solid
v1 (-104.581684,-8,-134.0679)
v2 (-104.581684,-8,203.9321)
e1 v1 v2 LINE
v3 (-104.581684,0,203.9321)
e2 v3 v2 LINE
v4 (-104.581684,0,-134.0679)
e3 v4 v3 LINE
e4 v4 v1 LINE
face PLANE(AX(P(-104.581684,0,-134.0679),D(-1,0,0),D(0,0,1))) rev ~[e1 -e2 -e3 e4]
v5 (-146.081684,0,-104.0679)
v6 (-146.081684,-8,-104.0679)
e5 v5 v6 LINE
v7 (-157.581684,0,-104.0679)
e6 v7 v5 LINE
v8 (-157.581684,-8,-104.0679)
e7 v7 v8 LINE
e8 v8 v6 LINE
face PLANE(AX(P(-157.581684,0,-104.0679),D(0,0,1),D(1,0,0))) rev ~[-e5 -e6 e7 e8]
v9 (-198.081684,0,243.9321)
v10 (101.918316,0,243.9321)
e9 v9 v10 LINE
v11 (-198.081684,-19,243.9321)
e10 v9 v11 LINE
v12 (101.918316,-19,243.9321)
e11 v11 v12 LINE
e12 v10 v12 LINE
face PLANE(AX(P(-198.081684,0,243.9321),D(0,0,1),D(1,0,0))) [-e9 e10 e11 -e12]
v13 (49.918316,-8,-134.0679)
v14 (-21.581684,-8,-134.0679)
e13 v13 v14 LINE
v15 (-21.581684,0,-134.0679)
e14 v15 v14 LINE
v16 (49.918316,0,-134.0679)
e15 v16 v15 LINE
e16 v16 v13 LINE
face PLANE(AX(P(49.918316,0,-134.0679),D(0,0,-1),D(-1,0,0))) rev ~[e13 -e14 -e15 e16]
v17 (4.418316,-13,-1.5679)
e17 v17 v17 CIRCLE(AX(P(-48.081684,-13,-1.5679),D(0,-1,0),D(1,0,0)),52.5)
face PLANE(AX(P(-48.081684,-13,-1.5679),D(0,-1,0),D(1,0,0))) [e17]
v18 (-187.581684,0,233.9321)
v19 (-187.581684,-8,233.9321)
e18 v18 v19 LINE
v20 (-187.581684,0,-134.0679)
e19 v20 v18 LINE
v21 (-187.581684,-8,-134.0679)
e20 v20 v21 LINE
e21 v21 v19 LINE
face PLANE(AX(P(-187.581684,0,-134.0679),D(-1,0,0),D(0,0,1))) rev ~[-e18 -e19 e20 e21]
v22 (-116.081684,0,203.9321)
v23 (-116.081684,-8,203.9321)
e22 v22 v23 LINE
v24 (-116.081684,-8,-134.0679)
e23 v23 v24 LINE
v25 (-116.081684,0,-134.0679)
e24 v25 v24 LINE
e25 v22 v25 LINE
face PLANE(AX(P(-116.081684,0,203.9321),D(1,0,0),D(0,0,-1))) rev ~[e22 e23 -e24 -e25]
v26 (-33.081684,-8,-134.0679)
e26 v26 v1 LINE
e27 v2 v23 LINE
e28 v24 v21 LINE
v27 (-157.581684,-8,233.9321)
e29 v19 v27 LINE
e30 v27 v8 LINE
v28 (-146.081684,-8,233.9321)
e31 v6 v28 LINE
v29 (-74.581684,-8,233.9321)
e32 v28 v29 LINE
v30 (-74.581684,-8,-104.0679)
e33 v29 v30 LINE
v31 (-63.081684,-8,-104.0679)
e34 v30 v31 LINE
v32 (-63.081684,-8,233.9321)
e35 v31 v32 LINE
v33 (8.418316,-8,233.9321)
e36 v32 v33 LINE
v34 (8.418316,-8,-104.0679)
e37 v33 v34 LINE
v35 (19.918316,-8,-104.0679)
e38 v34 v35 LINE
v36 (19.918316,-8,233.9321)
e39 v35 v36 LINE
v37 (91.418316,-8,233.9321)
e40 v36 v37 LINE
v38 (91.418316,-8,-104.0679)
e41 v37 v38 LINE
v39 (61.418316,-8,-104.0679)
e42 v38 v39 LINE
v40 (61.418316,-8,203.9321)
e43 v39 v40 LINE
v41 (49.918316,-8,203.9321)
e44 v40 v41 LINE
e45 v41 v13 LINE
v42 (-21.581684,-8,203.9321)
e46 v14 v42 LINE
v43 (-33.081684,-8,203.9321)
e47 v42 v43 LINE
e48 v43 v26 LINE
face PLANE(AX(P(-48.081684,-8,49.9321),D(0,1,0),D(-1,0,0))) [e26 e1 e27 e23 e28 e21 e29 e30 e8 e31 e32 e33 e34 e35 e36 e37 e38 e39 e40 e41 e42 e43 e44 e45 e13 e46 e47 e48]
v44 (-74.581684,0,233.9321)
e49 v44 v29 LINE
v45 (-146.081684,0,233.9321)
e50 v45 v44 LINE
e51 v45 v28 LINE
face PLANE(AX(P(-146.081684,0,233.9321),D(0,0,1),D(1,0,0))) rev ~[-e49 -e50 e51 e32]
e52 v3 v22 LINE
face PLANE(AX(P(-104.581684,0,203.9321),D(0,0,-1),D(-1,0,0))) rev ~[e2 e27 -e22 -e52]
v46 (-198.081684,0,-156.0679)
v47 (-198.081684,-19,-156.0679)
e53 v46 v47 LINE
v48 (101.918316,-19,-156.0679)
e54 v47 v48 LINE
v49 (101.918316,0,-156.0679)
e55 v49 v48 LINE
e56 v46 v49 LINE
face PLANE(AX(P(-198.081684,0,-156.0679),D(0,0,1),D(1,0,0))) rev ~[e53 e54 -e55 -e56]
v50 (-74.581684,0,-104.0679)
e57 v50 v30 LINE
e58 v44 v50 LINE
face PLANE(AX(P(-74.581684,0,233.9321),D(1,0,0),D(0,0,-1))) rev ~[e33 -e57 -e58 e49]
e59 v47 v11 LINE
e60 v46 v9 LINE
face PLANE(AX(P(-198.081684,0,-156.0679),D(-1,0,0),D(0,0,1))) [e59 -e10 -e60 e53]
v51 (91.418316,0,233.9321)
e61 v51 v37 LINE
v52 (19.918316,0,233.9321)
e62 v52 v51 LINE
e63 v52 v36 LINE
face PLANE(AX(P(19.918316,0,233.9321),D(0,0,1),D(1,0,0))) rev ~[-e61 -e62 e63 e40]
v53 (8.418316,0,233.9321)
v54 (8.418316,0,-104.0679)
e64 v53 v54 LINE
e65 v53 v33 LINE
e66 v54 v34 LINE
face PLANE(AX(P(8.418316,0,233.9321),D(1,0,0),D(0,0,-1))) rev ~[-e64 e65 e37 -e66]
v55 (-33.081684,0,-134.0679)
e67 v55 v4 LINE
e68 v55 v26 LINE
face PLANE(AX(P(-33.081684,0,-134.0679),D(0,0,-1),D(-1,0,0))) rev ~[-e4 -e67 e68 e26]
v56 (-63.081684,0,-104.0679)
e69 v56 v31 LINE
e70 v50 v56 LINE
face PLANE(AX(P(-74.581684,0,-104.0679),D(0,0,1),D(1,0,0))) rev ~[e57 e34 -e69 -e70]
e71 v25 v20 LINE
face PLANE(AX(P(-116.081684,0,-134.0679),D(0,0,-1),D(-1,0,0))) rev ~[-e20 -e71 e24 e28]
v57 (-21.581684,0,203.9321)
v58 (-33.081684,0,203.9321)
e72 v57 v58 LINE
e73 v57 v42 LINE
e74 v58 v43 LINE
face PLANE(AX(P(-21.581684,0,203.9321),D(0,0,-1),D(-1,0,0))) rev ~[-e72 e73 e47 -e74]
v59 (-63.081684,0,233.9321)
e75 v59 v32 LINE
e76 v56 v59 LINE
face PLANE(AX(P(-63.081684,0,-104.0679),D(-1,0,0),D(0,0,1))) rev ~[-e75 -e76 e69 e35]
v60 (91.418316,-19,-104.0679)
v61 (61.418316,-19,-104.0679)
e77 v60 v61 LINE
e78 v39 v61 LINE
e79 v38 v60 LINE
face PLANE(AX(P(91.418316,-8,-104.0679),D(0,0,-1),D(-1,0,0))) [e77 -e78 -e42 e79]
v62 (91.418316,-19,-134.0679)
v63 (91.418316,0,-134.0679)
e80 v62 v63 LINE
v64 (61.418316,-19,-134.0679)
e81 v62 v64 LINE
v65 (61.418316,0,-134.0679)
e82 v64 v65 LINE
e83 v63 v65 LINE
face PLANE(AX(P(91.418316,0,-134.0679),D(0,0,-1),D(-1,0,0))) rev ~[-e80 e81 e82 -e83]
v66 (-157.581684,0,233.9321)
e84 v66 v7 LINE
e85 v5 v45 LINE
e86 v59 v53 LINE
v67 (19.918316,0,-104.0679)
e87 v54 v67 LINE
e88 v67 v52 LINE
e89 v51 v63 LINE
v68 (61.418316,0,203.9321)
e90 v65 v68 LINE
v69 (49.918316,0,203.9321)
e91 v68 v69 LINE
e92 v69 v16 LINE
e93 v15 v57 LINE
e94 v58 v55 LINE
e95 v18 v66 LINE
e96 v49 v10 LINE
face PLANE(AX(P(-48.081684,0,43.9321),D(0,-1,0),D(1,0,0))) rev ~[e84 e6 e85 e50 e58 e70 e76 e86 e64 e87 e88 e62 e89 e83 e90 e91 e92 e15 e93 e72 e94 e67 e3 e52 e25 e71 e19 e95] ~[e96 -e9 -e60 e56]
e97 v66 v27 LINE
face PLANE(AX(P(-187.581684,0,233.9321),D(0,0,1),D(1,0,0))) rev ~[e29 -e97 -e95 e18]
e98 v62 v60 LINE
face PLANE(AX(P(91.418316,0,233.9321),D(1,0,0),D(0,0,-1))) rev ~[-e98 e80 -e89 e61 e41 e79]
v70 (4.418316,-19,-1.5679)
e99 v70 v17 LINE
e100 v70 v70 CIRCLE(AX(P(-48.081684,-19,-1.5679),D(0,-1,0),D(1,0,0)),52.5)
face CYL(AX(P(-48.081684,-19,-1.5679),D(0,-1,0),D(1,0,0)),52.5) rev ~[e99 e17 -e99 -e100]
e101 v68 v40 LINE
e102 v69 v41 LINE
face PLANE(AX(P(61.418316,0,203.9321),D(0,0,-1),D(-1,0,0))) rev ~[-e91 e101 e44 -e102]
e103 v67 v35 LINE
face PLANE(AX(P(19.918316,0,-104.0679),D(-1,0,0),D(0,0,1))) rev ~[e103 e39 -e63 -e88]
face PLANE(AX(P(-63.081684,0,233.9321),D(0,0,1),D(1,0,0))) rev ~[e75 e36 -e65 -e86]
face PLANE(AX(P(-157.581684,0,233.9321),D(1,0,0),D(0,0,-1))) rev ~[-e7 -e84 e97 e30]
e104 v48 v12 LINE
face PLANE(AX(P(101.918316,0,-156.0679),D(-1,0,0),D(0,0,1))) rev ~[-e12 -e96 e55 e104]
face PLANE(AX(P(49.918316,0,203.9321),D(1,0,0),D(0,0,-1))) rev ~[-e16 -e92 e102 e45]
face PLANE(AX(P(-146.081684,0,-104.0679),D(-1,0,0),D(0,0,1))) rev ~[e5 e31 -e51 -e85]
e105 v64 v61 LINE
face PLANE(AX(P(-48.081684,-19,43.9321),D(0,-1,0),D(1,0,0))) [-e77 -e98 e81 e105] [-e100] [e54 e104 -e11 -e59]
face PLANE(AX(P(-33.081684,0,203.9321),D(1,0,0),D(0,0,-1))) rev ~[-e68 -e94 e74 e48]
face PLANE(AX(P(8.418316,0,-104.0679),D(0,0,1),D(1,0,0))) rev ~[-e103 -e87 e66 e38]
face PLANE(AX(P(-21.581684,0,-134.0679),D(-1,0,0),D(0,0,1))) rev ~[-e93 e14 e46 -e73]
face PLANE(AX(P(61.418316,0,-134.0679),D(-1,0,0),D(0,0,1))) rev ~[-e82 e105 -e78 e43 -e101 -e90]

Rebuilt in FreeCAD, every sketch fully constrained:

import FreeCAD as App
import Part
import Sketcher
from FreeCAD import Vector


def add_polygon(sketch, points):
    """Adds a closed chain of lines whose ends are joined by coincident constraints."""
    first, n = sketch.GeometryCount, len(points)
    for a, b in zip(points, points[1:] + points[:1]):
        sketch.addGeometry(Part.LineSegment(App.Vector(*a, 0), App.Vector(*b, 0)), False)
    for i in range(n):
        sketch.addConstraint(Sketcher.Constraint("Coincident", first + i, 2, first + (i + 1) % n, 1))

doc = App.newDocument("Part")
body = doc.addObject("PartDesign::Body", "Body")

sketch1 = body.newObject("Sketcher::SketchObject", "Sketch")
sketch1.AttachmentSupport = (doc.getObject("XZ_Plane"), [""])
sketch1.MapMode = "FlatFace"
add_polygon(sketch1, [(-198, 244), (-198, -156), (102, -156), (102, 244)])
sketch1.addConstraint(Sketcher.Constraint("Vertical", 0))
sketch1.addConstraint(Sketcher.Constraint("Horizontal", 1))
sketch1.addConstraint(Sketcher.Constraint("Vertical", 2))
sketch1.addConstraint(Sketcher.Constraint("Horizontal", 3))
sketch1.addConstraint(Sketcher.Constraint("DistanceX", 1, 1, 1, 2, 300.0))
sketch1.addConstraint(Sketcher.Constraint("DistanceY", 0, 2, 0, 1, 400.0))
sketch1.addConstraint(Sketcher.Constraint("DistanceY", 0, 2, -1, 1, 156.0679))
sketch1.addConstraint(Sketcher.Constraint("DistanceX", 0, 2, -1, 1, 198.081684))
pad1 = body.newObject("PartDesign::Pad", "Pad")
pad1.Profile = sketch1
pad1.Length = 19

sketch2 = body.newObject("Sketcher::SketchObject", "Sketch001")
sketch2.AttachmentSupport = (doc.getObject("XZ_Plane"), [""])
sketch2.MapMode = "FlatFace"
sketch2.AttachmentOffset = App.Placement(Vector(0, 0, 19), App.Rotation())
sketch2.addGeometry(Part.Circle(Vector(-48, -2, 0), Vector(0, 0, 1), 52), False)
sketch2.addConstraint(Sketcher.Constraint("Diameter", 0, 105.0))
sketch2.addConstraint(Sketcher.Constraint("DistanceY", 0, 3, -1, 1, 1.5679))
sketch2.addConstraint(Sketcher.Constraint("DistanceX", 0, 3, -1, 1, 48.081684))
pocket1 = body.newObject("PartDesign::Pocket", "Pocket")
pocket1.Profile = sketch2
pocket1.Length = 6

sketch3 = body.newObject("Sketcher::SketchObject", "Sketch002")
sketch3.AttachmentSupport = (doc.getObject("XZ_Plane"), [""])
sketch3.MapMode = "FlatFace"
add_polygon(sketch3, [(91, 234), (91, -134), (61, -134), (61, 204), (50, 204), (50, -134), (-22, -134), (-22, 204), (-33, 204), (-33, -134), (-105, -134), (-105, 204), (-116, 204), (-116, -134), (-188, -134), (-188, 234), (-158, 234), (-158, -104), (-146, -104), (-146, 234), (-75, 234), (-75, -104), (-63, -104), (-63, 234), (8, 234), (8, -104), (20, -104), (20, 234)])
sketch3.addConstraint(Sketcher.Constraint("Vertical", 0))
sketch3.addConstraint(Sketcher.Constraint("Horizontal", 1))
sketch3.addConstraint(Sketcher.Constraint("Vertical", 2))
sketch3.addConstraint(Sketcher.Constraint("Horizontal", 3))
sketch3.addConstraint(Sketcher.Constraint("Vertical", 4))
sketch3.addConstraint(Sketcher.Constraint("Horizontal", 5))
sketch3.addConstraint(Sketcher.Constraint("Vertical", 6))
sketch3.addConstraint(Sketcher.Constraint("Horizontal", 7))
sketch3.addConstraint(Sketcher.Constraint("Vertical", 8))
sketch3.addConstraint(Sketcher.Constraint("Horizontal", 9))
sketch3.addConstraint(Sketcher.Constraint("Vertical", 10))
sketch3.addConstraint(Sketcher.Constraint("Horizontal", 11))
sketch3.addConstraint(Sketcher.Constraint("Vertical", 12))
sketch3.addConstraint(Sketcher.Constraint("Horizontal", 13))
sketch3.addConstraint(Sketcher.Constraint("Vertical", 14))
sketch3.addConstraint(Sketcher.Constraint("Horizontal", 15))
sketch3.addConstraint(Sketcher.Constraint("Vertical", 16))
sketch3.addConstraint(Sketcher.Constraint("Horizontal", 17))
sketch3.addConstraint(Sketcher.Constraint("Vertical", 18))
sketch3.addConstraint(Sketcher.Constraint("Horizontal", 19))
sketch3.addConstraint(Sketcher.Constraint("Vertical", 20))
sketch3.addConstraint(Sketcher.Constraint("Horizontal", 21))
sketch3.addConstraint(Sketcher.Constraint("Vertical", 22))
sketch3.addConstraint(Sketcher.Constraint("Horizontal", 23))
sketch3.addConstraint(Sketcher.Constraint("Vertical", 24))
sketch3.addConstraint(Sketcher.Constraint("Horizontal", 25))
sketch3.addConstraint(Sketcher.Constraint("Vertical", 26))
sketch3.addConstraint(Sketcher.Constraint("Horizontal", 27))
sketch3.addConstraint(Sketcher.Constraint("Horizontal", 1, 2, 4, 2))
sketch3.addConstraint(Sketcher.Constraint("Horizontal", 3, 2, 6, 2))
sketch3.addConstraint(Sketcher.Constraint("Horizontal", 5, 2, 8, 2))
sketch3.addConstraint(Sketcher.Constraint("Horizontal", 7, 2, 10, 2))
sketch3.addConstraint(Sketcher.Constraint("Horizontal", 9, 2, 12, 2))
sketch3.addConstraint(Sketcher.Constraint("Horizontal", 15, 2, 18, 2))
sketch3.addConstraint(Sketcher.Constraint("Horizontal", 17, 2, 20, 2))
sketch3.addConstraint(Sketcher.Constraint("Horizontal", 19, 2, 22, 2))
sketch3.addConstraint(Sketcher.Constraint("Horizontal", 21, 2, 24, 2))
sketch3.addConstraint(Sketcher.Constraint("Horizontal", 23, 2, 26, 2))
sketch3.addConstraint(Sketcher.Constraint("Equal", 3, 7))
sketch3.addConstraint(Sketcher.Constraint("Equal", 5, 9))
sketch3.addConstraint(Sketcher.Constraint("Equal", 7, 11))
sketch3.addConstraint(Sketcher.Constraint("Equal", 9, 13))
sketch3.addConstraint(Sketcher.Constraint("Equal", 1, 15))
sketch3.addConstraint(Sketcher.Constraint("Equal", 11, 17))
sketch3.addConstraint(Sketcher.Constraint("Equal", 13, 19))
sketch3.addConstraint(Sketcher.Constraint("Equal", 17, 21))
sketch3.addConstraint(Sketcher.Constraint("Equal", 19, 23))
sketch3.addConstraint(Sketcher.Constraint("Equal", 21, 25))
sketch3.addConstraint(Sketcher.Constraint("Equal", 12, 16))
sketch3.addConstraint(Sketcher.Constraint("DistanceX", 1, 2, 1, 1, 30.0))
sketch3.addConstraint(Sketcher.Constraint("DistanceY", 0, 2, 0, 1, 368.0))
sketch3.addConstraint(Sketcher.Constraint("DistanceY", 2, 1, 2, 2, 338.0))
sketch3.addConstraint(Sketcher.Constraint("DistanceX", 3, 2, 3, 1, 11.5))
sketch3.addConstraint(Sketcher.Constraint("DistanceX", 5, 2, 5, 1, 71.5))
sketch3.addConstraint(Sketcher.Constraint("DistanceY", 0, 2, -1, 1, 134.0679))
sketch3.addConstraint(Sketcher.Constraint("DistanceX", -1, 1, 0, 2, 91.418316))
pocket2 = body.newObject("PartDesign::Pocket", "Pocket001")
pocket2.Profile = sketch3
pocket2.Length = 8
pocket2.Reversed = True

sketch4 = body.newObject("Sketcher::SketchObject", "Sketch003")
sketch4.AttachmentSupport = (doc.getObject("XZ_Plane"), [""])
sketch4.MapMode = "FlatFace"
sketch4.AttachmentOffset = App.Placement(Vector(0, 0, 8), App.Rotation())
add_polygon(sketch4, [(91, -104), (91, -134), (61, -134), (61, -104)])
sketch4.addConstraint(Sketcher.Constraint("Vertical", 0))
sketch4.addConstraint(Sketcher.Constraint("Horizontal", 1))
sketch4.addConstraint(Sketcher.Constraint("Vertical", 2))
sketch4.addConstraint(Sketcher.Constraint("Horizontal", 3))
sketch4.addConstraint(Sketcher.Constraint("Equal", 3, 0))
sketch4.addConstraint(Sketcher.Constraint("DistanceX", 1, 2, 1, 1, 30.0))
sketch4.addConstraint(Sketcher.Constraint("DistanceY", 0, 2, -1, 1, 134.0679))
sketch4.addConstraint(Sketcher.Constraint("DistanceX", -1, 1, 0, 2, 91.418316))
pocket3 = body.newObject("PartDesign::Pocket", "Pocket002")
pocket3.Profile = sketch4
pocket3.Length = 11
pocket3.Reversed = True

doc.recompute()
